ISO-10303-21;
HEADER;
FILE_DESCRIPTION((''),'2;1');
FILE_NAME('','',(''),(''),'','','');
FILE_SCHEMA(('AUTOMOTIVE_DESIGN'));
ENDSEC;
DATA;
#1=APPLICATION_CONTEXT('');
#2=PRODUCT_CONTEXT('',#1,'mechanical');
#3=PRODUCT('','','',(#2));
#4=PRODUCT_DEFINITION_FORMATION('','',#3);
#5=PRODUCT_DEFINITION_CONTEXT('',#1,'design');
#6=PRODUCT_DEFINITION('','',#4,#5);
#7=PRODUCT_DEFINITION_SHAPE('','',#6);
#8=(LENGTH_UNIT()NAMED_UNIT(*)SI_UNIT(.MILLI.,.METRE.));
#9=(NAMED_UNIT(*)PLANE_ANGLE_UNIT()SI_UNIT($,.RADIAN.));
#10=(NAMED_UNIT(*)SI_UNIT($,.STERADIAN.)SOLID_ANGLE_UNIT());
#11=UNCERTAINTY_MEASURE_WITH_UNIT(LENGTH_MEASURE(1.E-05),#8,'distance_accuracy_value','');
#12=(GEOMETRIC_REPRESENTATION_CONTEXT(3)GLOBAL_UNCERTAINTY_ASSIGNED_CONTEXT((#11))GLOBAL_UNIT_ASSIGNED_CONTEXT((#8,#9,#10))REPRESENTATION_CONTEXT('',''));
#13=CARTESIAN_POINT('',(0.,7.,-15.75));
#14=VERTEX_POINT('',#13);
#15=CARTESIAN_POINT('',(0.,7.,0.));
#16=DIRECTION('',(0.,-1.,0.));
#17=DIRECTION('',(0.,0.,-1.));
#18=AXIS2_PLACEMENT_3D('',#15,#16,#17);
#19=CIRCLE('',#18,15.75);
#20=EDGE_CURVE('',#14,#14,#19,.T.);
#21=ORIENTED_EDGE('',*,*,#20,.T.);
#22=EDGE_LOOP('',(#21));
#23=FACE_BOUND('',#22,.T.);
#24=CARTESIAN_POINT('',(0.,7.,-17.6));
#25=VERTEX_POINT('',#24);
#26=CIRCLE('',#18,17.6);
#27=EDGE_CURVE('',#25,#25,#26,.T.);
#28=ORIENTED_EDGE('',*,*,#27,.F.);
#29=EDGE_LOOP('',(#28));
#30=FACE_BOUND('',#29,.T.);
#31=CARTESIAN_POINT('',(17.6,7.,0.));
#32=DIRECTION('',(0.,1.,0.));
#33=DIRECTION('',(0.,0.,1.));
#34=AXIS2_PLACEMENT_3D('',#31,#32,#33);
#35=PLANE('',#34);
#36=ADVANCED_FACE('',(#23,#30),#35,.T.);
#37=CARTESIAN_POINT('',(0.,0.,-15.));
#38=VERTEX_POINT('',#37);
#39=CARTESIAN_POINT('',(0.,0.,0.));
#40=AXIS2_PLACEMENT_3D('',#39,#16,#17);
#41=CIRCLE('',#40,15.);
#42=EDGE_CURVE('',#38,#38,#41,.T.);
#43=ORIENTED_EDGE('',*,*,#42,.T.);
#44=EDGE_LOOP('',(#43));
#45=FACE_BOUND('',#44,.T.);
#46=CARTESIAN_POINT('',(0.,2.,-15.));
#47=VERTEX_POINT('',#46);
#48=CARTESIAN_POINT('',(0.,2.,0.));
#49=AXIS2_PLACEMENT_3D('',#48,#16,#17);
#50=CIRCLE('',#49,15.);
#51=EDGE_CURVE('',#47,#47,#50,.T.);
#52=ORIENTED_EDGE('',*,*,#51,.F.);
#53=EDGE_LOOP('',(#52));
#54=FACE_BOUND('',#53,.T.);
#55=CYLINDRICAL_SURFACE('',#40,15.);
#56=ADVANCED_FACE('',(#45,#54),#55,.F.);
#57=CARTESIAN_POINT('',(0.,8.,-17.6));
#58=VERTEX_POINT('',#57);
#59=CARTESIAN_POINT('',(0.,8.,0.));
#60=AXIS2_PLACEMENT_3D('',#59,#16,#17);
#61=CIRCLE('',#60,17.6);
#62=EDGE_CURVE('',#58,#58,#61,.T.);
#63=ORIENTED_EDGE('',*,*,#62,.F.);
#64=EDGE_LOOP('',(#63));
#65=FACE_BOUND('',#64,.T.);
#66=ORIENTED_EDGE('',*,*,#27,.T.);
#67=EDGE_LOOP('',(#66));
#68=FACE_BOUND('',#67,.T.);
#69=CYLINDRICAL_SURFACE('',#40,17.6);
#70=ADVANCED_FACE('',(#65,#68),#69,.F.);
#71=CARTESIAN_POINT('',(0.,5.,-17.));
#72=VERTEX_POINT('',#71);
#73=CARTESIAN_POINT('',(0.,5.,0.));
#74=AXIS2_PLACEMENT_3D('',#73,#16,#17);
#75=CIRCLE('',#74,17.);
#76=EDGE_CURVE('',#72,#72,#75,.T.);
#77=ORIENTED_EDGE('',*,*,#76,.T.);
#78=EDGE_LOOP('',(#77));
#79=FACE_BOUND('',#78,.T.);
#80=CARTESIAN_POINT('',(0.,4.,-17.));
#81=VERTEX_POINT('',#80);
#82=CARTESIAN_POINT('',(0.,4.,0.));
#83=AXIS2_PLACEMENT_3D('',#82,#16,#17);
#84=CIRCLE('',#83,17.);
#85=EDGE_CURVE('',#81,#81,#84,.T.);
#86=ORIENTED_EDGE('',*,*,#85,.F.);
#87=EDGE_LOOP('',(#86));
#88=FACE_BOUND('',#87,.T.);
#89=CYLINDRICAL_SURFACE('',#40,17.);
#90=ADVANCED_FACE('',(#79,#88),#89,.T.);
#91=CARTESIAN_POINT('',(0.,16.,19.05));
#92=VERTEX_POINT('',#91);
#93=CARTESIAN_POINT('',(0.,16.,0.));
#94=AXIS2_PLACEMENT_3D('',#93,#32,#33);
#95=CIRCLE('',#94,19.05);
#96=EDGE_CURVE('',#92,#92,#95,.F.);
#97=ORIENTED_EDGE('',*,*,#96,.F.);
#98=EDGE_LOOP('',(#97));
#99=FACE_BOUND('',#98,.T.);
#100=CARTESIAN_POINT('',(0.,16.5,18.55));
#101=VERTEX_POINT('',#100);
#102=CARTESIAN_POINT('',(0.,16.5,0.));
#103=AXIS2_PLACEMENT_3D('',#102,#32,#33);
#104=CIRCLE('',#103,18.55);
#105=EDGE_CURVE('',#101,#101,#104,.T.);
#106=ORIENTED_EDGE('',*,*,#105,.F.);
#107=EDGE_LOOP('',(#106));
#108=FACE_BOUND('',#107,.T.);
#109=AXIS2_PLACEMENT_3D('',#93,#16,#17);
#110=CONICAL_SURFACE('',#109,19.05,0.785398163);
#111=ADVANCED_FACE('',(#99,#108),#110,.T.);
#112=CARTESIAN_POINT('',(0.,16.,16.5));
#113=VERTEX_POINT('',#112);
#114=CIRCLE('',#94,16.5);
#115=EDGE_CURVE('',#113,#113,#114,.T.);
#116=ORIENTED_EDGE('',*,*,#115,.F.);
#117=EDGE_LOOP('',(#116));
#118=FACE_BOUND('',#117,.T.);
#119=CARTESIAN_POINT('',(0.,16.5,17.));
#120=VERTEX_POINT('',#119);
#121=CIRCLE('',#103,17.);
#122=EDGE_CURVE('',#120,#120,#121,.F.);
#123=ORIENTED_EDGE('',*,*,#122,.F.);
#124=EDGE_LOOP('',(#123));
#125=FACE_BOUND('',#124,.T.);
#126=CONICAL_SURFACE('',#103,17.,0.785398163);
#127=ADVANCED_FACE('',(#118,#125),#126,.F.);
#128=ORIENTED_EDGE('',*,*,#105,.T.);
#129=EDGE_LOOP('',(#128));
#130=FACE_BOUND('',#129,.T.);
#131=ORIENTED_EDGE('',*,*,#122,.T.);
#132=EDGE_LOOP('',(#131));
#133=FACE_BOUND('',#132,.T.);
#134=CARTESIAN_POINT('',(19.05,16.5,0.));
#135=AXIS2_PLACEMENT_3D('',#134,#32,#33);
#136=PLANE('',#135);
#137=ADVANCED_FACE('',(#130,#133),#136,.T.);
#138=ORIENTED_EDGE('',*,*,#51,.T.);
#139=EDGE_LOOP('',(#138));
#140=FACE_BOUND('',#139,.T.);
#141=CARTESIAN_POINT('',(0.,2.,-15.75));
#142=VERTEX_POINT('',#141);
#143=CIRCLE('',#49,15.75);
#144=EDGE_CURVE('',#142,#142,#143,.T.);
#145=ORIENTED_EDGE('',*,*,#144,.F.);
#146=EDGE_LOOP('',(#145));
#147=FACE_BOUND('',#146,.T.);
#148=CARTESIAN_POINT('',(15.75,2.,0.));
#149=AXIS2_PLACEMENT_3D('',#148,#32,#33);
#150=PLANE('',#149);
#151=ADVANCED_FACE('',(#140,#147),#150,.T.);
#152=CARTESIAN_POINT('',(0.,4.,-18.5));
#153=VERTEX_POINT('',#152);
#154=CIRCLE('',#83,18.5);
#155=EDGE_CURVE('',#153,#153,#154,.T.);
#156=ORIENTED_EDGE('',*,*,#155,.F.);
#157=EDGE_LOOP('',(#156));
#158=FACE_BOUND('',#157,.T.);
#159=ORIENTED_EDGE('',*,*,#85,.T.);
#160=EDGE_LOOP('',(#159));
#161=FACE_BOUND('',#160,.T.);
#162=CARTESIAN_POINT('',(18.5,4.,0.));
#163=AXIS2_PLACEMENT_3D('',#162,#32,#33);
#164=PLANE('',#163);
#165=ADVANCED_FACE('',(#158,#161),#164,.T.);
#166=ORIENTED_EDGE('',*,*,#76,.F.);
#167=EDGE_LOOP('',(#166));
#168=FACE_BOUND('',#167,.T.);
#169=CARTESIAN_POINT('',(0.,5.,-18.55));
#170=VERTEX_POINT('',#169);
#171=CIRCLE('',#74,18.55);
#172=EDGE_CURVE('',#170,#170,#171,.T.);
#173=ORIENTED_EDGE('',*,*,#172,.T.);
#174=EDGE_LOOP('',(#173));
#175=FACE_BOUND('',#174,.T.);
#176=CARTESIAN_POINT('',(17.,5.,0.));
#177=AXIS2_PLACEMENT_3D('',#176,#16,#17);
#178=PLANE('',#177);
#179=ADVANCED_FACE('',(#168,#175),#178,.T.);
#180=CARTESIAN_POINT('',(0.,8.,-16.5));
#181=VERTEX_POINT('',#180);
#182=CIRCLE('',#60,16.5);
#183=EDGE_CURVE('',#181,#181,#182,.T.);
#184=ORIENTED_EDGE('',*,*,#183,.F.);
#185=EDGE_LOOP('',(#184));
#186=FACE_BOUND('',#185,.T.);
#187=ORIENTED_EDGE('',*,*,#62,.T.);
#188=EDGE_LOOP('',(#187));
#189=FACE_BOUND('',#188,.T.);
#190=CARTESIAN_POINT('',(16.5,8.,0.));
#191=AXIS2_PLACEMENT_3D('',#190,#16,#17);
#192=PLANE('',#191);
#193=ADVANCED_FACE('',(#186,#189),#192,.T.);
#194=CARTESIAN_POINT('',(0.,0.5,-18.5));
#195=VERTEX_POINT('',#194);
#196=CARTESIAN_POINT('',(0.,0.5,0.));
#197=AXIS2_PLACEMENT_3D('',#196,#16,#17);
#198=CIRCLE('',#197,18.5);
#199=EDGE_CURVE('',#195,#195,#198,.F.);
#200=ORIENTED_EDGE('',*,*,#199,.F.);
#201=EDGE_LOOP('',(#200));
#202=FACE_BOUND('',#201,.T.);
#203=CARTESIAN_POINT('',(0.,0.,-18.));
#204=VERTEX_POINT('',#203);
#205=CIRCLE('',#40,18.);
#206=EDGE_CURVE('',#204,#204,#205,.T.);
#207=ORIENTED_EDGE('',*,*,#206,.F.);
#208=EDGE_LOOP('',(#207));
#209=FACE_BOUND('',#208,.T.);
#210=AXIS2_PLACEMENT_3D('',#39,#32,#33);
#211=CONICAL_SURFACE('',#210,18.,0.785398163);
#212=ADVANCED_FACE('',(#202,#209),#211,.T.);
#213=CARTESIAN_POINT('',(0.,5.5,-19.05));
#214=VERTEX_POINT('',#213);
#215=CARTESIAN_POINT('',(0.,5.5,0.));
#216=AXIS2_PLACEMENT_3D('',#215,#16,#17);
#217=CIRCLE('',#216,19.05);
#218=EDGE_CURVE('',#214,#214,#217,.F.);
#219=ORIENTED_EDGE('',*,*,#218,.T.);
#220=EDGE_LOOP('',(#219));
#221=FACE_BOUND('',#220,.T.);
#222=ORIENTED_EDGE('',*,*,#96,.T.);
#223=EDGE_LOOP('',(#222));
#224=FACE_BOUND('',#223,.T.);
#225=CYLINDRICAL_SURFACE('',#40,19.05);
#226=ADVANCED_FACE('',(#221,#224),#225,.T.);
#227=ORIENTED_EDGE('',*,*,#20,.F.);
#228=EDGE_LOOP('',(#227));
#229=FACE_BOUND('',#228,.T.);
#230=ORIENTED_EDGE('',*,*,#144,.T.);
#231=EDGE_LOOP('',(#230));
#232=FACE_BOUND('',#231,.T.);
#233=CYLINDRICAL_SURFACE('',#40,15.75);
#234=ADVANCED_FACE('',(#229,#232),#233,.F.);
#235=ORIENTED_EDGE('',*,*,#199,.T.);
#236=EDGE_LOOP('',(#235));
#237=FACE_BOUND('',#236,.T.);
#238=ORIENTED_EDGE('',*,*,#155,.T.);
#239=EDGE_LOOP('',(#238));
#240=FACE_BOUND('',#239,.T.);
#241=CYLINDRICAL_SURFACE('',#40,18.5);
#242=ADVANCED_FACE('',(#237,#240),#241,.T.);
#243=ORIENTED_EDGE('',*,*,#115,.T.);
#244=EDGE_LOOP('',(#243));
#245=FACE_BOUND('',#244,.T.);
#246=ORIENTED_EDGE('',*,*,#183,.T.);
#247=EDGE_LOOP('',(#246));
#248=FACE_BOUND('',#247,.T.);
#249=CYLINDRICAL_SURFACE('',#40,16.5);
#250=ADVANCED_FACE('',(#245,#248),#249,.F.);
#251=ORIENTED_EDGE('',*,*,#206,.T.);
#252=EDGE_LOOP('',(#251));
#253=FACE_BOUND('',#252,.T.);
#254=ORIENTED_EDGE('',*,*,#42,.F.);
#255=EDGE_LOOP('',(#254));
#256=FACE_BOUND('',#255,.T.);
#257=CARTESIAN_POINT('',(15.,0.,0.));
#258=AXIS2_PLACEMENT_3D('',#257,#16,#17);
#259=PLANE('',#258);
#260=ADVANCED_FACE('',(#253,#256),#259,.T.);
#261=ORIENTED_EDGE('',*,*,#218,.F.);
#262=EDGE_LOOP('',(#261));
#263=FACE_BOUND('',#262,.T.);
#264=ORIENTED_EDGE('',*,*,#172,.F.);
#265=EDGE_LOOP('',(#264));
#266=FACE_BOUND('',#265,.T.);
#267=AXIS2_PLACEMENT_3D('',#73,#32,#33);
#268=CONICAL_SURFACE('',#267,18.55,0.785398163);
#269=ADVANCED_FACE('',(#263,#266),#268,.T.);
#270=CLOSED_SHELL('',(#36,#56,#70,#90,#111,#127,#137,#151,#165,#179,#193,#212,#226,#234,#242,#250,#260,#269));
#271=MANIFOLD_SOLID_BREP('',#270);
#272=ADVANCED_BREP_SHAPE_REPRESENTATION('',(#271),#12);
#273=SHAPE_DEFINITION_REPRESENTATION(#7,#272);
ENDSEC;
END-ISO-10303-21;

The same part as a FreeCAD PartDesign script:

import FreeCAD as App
import Part
import Sketcher


def edges_at(feature, points):
    """Names of the edges that pass closest to the given points."""
    edges = feature.Shape.Edges
    near = lambda p: min(range(len(edges)), key=lambda i: edges[i].distToShape(Part.Vertex(*p))[0])
    return sorted({f"Edge{near(p) + 1}" for p in points})

doc = App.newDocument("Part")
body = doc.addObject("PartDesign::Body", "Body")

sketch1 = body.newObject("Sketcher::SketchObject", "Sketch")
sketch1.AttachmentSupport = (doc.getObject("XY_Plane"), [""])
sketch1.MapMode = "FlatFace"
sketch1.addGeometry([
    Part.LineSegment(App.Vector(15, 0, 0), App.Vector(18.5, 0, 0)),
    Part.LineSegment(App.Vector(18.5, 0, 0), App.Vector(18.5, 4, 0)),
    Part.LineSegment(App.Vector(18.5, 4, 0), App.Vector(17, 4, 0)),
    Part.LineSegment(App.Vector(17, 4, 0), App.Vector(17, 5, 0)),
    Part.LineSegment(App.Vector(17, 5, 0), App.Vector(19.05, 5, 0)),
    Part.LineSegment(App.Vector(19.05, 5, 0), App.Vector(19.05, 16.5, 0)),
    Part.LineSegment(App.Vector(19.05, 16.5, 0), App.Vector(16.5, 16.5, 0)),
    Part.LineSegment(App.Vector(16.5, 16.5, 0), App.Vector(16.5, 8, 0)),
    Part.LineSegment(App.Vector(16.5, 8, 0), App.Vector(17.6, 8, 0)),
    Part.LineSegment(App.Vector(17.6, 8, 0), App.Vector(17.6, 7, 0)),
    Part.LineSegment(App.Vector(17.6, 7, 0), App.Vector(15.75, 7, 0)),
    Part.LineSegment(App.Vector(15.75, 7, 0), App.Vector(15.75, 2, 0)),
    Part.LineSegment(App.Vector(15.75, 2, 0), App.Vector(15, 2, 0)),
    Part.LineSegment(App.Vector(15, 2, 0), App.Vector(15, 0, 0)),
], False)
sketch1.addConstraint([
    Sketcher.Constraint("Coincident", 0, 2, 1, 1),
    Sketcher.Constraint("Coincident", 1, 2, 2, 1),
    Sketcher.Constraint("Coincident", 2, 2, 3, 1),
    Sketcher.Constraint("Coincident", 3, 2, 4, 1),
    Sketcher.Constraint("Coincident", 4, 2, 5, 1),
    Sketcher.Constraint("Coincident", 5, 2, 6, 1),
    Sketcher.Constraint("Coincident", 6, 2, 7, 1),
    Sketcher.Constraint("Coincident", 7, 2, 8, 1),
    Sketcher.Constraint("Coincident", 8, 2, 9, 1),
    Sketcher.Constraint("Coincident", 9, 2, 10, 1),
    Sketcher.Constraint("Coincident", 10, 2, 11, 1),
    Sketcher.Constraint("Coincident", 11, 2, 12, 1),
    Sketcher.Constraint("Coincident", 12, 2, 13, 1),
    Sketcher.Constraint("Coincident", 13, 2, 0, 1),
    Sketcher.Constraint("Horizontal", 0),
    Sketcher.Constraint("Vertical", 1),
    Sketcher.Constraint("Horizontal", 2),
    Sketcher.Constraint("Vertical", 3),
    Sketcher.Constraint("Horizontal", 4),
    Sketcher.Constraint("Vertical", 5),
    Sketcher.Constraint("Horizontal", 6),
    Sketcher.Constraint("Vertical", 7),
    Sketcher.Constraint("Horizontal", 8),
    Sketcher.Constraint("Vertical", 9),
    Sketcher.Constraint("Horizontal", 10),
    Sketcher.Constraint("Vertical", 11),
    Sketcher.Constraint("Horizontal", 12),
    Sketcher.Constraint("Vertical", 13),
    Sketcher.Constraint("PointOnObject", 0, 2, -1),
    Sketcher.Constraint("Equal", 3, 9),
    Sketcher.Constraint("DistanceY", 1, 1, 1, 2, 4.0),
    Sketcher.Constraint("DistanceY", 3, 1, 3, 2, 1.0),
    Sketcher.Constraint("DistanceY", 11, 2, 11, 1, 5.0),
    Sketcher.Constraint("DistanceY", 13, 2, 13, 1, 2.0),
    Sketcher.Constraint("DistanceX", 0, 1, 0, 2, 3.5),
    Sketcher.Constraint("DistanceX", 2, 2, 2, 1, 1.5),
    Sketcher.Constraint("DistanceX", 8, 1, 8, 2, 1.1),
    Sketcher.Constraint("DistanceY", 5, 1, 5, 2, 11.5),
    Sketcher.Constraint("DistanceX", -1, 1, 2, 2, 17.0),
    Sketcher.Constraint("DistanceX", 6, 2, 1, 2, 2.0),
    Sketcher.Constraint("DistanceX", 4, 1, 4, 2, 2.05),
    Sketcher.Constraint("DistanceX", 10, 2, 10, 1, 1.85),
])
revolution = body.newObject("PartDesign::Revolution", "Revolution")
revolution.Profile = sketch1
revolution.ReferenceAxis = (sketch1, ["V_Axis"])
revolution.Angle = 360
doc.recompute()

chamfer = body.newObject("PartDesign::Chamfer", "Chamfer")
chamfer.Base = (revolution, edges_at(revolution, [
    (0, 16.5, 16.5),
    (0, 16.5, 19.05),
    (0, 5, 19.05),
    (0, 0, 18.5),
]))
chamfer.Size = 0.5

doc.recompute()
